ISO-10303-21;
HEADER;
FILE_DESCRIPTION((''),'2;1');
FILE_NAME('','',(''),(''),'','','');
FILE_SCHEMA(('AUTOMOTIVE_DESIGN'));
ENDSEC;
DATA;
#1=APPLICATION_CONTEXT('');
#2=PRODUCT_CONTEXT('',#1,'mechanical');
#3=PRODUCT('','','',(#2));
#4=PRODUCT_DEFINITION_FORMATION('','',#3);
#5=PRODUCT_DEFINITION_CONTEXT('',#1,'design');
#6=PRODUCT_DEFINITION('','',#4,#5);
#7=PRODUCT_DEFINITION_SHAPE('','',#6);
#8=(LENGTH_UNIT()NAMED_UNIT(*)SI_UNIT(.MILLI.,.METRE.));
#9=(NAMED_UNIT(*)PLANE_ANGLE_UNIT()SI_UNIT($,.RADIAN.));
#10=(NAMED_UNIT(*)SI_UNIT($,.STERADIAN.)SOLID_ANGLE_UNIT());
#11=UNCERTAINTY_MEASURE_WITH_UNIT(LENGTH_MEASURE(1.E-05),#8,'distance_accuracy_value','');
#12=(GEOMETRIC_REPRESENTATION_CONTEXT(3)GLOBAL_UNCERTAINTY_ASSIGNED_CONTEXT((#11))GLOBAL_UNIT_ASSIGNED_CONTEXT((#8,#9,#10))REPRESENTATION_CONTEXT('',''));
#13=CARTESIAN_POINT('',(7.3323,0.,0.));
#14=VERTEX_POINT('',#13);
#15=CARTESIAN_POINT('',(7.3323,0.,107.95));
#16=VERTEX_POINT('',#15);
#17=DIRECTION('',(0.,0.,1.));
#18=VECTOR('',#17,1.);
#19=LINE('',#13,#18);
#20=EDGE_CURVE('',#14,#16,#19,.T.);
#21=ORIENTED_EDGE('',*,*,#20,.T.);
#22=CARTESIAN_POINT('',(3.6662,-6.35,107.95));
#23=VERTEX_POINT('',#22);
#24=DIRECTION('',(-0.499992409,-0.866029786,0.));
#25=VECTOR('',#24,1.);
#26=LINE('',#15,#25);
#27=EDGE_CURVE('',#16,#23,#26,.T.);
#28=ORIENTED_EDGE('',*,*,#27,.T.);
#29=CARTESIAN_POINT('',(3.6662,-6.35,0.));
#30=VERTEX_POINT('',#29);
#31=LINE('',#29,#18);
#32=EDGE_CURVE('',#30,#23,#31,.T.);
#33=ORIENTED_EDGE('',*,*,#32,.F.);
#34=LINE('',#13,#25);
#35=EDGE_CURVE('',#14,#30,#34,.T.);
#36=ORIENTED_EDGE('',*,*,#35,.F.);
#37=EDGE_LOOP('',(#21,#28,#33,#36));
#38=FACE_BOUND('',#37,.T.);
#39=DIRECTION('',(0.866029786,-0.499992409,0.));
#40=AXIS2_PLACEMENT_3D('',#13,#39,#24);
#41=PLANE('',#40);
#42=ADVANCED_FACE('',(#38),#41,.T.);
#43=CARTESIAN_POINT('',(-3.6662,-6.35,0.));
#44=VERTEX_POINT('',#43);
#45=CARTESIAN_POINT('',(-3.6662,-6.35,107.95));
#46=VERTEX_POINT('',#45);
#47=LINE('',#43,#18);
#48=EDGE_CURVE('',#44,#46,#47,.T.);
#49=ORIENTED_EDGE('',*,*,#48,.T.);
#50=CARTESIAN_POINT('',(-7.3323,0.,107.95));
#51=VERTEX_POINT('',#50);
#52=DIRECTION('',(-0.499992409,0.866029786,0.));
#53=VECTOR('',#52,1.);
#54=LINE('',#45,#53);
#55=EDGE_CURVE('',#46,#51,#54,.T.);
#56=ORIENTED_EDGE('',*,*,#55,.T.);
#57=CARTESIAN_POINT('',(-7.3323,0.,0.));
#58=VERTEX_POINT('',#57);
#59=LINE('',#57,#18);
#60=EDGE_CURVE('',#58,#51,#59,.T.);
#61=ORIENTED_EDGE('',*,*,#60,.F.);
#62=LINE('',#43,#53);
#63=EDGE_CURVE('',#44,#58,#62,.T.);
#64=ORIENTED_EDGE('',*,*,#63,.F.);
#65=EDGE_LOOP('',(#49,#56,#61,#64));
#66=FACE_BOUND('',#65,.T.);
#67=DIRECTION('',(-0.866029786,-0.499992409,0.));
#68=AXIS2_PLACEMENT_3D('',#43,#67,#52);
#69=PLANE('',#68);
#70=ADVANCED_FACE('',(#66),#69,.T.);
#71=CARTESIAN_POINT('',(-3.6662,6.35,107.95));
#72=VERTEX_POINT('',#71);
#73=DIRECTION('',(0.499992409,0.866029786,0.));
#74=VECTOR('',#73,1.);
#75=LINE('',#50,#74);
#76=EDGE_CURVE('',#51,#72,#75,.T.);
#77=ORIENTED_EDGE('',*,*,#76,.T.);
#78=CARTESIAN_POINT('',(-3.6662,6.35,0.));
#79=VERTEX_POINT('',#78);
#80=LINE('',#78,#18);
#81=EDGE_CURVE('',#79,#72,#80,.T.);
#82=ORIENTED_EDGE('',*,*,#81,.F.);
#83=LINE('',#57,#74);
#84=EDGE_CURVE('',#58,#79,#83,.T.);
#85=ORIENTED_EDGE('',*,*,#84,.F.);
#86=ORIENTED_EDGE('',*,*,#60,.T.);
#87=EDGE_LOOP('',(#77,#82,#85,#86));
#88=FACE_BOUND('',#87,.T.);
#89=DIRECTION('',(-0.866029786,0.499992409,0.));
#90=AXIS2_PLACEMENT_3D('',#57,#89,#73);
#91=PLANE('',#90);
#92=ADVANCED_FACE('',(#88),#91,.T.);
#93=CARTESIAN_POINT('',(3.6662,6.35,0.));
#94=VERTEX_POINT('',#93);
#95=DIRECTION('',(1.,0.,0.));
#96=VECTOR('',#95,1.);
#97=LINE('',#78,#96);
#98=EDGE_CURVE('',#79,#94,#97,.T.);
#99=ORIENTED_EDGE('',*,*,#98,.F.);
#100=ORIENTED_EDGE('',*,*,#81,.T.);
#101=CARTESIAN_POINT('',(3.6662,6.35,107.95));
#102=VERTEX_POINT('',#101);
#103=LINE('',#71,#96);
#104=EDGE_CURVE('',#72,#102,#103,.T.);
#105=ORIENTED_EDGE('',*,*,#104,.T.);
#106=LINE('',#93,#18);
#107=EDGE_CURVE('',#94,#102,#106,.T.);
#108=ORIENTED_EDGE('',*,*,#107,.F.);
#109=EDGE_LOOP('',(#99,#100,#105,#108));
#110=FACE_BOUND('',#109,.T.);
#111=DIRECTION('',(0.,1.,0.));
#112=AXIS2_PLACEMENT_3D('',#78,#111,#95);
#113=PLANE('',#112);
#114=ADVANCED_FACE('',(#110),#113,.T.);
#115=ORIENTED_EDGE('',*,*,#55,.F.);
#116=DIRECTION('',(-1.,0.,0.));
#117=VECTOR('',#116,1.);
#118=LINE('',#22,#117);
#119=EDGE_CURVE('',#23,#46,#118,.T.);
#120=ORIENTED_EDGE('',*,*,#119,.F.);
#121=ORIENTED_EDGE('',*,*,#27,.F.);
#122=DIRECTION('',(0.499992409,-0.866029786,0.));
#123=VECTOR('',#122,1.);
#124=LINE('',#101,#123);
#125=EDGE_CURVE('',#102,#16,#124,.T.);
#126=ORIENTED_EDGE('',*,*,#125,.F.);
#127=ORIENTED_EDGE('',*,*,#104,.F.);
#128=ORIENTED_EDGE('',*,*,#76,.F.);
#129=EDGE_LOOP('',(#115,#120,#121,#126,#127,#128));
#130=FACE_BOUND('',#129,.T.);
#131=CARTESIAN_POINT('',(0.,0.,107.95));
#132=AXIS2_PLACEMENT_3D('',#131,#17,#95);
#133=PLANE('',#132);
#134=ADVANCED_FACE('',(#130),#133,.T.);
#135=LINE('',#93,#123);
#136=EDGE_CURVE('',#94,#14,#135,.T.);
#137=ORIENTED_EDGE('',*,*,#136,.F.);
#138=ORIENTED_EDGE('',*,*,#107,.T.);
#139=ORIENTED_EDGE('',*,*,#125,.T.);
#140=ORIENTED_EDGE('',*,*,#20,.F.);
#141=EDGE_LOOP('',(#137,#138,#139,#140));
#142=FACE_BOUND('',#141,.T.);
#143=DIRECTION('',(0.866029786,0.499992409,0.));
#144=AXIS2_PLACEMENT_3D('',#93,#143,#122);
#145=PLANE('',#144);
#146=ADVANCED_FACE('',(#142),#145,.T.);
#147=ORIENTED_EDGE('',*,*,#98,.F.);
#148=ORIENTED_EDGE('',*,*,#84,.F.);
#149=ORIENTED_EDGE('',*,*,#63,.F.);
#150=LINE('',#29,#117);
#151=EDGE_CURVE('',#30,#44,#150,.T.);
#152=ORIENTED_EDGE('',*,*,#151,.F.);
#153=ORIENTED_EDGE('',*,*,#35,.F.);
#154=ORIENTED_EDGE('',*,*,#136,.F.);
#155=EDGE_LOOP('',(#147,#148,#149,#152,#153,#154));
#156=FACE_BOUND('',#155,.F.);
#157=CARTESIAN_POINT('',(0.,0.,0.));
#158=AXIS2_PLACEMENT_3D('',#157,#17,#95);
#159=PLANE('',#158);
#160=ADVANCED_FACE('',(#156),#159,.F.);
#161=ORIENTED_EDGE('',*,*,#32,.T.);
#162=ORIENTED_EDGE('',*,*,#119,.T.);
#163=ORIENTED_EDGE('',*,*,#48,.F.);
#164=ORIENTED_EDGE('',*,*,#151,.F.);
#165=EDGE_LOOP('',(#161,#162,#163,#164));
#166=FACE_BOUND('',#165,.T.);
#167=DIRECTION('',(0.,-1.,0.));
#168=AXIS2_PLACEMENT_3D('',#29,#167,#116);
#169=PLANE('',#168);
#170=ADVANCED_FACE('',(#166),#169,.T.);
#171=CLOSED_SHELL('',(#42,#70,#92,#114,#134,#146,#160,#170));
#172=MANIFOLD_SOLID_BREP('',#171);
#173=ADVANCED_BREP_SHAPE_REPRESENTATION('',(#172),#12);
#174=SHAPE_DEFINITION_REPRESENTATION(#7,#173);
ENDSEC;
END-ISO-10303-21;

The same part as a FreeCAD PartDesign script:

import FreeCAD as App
import Part
import Sketcher
from FreeCAD import Vector
Q = App.Units.Quantity


def add_polygon(sketch, points):
    """Adds a closed chain of lines whose ends are joined by coincident constraints."""
    first, n = sketch.GeometryCount, len(points)
    for a, b in zip(points, points[1:] + points[:1]):
        sketch.addGeometry(Part.LineSegment(App.Vector(*a, 0), App.Vector(*b, 0)), False)
    for i in range(n):
        sketch.addConstraint(Sketcher.Constraint("Coincident", first + i, 2, first + (i + 1) % n, 1))

doc = App.newDocument("Part")
body = doc.addObject("PartDesign::Body", "Body")

sketch1 = body.newObject("Sketcher::SketchObject", "Sketch")
sketch1.AttachmentSupport = (doc.getObject("XY_Plane"), [""])
sketch1.MapMode = "FlatFace"
add_polygon(sketch1, [(7.3323, 0), (3.6662, 6.35), (-3.6662, 6.35), (-7.3323, 0), (-3.6662, -6.35), (3.6662, -6.35)])
sketch1.addConstraint(Sketcher.Constraint("Horizontal", 1))
sketch1.addConstraint(Sketcher.Constraint("Horizontal", 4))
sketch1.addConstraint(Sketcher.Constraint("Symmetric", 0, 2, 3, 2, -1, 1))
sketch1.addConstraint(Sketcher.Constraint("Symmetric", 2, 2, 5, 2, -1, 1))
sketch1.addConstraint(Sketcher.Constraint("PointOnObject", 2, 2, -1))
sketch1.addConstraint(Sketcher.Constraint("Parallel", 2, 5))
sketch1.addConstraint(Sketcher.Constraint("Vertical", 1, 2, 3, 2))
sketch1.addConstraint(Sketcher.Constraint("Angle", 0, Q("119.9995 deg")))
sketch1.addConstraint(Sketcher.Constraint("DistanceY", 3, 2, 1, 2, Q("0.5 in")))
sketch1.addConstraint(Sketcher.Constraint("DistanceX", 2, 2, 0, 2, Q("0.433 in")))
pad1 = body.newObject("PartDesign::Pad", "Pad")
pad1.Profile = sketch1
pad1.Length = Q("4.25 in")

doc.recompute()
